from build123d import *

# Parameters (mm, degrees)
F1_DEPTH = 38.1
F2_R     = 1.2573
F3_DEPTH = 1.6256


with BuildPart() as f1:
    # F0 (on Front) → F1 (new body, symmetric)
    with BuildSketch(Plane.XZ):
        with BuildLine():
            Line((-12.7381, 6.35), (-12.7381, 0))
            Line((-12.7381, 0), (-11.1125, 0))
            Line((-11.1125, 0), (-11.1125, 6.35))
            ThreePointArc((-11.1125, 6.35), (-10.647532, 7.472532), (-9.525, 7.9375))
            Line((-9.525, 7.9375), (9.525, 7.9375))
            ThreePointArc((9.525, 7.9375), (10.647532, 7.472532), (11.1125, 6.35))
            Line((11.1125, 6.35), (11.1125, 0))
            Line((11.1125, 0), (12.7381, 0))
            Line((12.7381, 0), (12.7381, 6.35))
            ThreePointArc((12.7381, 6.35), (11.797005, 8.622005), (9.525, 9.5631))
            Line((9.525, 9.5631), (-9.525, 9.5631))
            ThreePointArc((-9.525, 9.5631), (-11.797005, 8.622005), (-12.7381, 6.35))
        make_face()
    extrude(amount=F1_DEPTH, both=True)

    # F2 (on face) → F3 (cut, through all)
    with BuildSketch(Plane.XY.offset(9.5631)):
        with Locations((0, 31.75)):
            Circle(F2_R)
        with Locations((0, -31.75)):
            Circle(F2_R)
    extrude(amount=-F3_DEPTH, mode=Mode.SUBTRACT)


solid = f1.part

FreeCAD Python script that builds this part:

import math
import FreeCAD as App
import Part
import Sketcher

V = App.Vector
Q = App.Units.Quantity

doc = App.newDocument("Part")
params = doc.addObject("Spreadsheet::Sheet", "Params")
for row, (alias, value) in enumerate([
    ("sketch1_radius", "0.0625 in"),
    ("sketch1_width", "0.75 in"),
    ("sketch1_height", "0.25 in"),
    ("pad1_length", "3 in"),
    ("sketch2_diameter", "0.099 in"),
], start=1):
    params.set(f"A{row}", alias)
    params.set(f"B{row}", "=" + value)
    params.setAlias(f"B{row}", alias)

body = doc.addObject("PartDesign::Body", "Body")

# Sketch on XZ plane
sketch1 = body.newObject("Sketcher::SketchObject", "Sketch")
sketch1.AttachmentSupport = (doc.getObject("XZ_Plane"), [""])
sketch1.MapMode = "FlatFace"
sketch1.addGeometry(Part.LineSegment(V(-12.7, 6.3, 0), V(-12.7, 0, 0)), False)
sketch1.addGeometry(Part.LineSegment(V(-12.7, 0, 0), V(-11.1, 0, 0)), False)
sketch1.addGeometry(Part.LineSegment(V(-11.1, 0, 0), V(-11.1, 6.3, 0)), False)
sketch1.addGeometry(Part.ArcOfCircle(Part.Circle(V(-9.5, 6.3, 0), V(0, 0, 1), 1.6), math.radians(90), math.radians(180)), False)
sketch1.addGeometry(Part.LineSegment(V(-9.5, 7.9, 0), V(9.5, 7.9, 0)), False)
sketch1.addGeometry(Part.ArcOfCircle(Part.Circle(V(9.5, 6.3, 0), V(0, 0, 1), 1.6), math.radians(0), math.radians(90)), False)
sketch1.addGeometry(Part.LineSegment(V(11.1, 6.3, 0), V(11.1, 0, 0)), False)
sketch1.addGeometry(Part.LineSegment(V(11.1, 0, 0), V(12.7, 0, 0)), False)
sketch1.addGeometry(Part.LineSegment(V(12.7, 0, 0), V(12.7, 6.3, 0)), False)
sketch1.addGeometry(Part.ArcOfCircle(Part.Circle(V(9.5, 6.4, 0), V(0, 0, 1), 3.2), math.radians(0), math.radians(90)), False)
sketch1.addGeometry(Part.LineSegment(V(9.5, 9.6, 0), V(-9.5, 9.6, 0)), False)
sketch1.addGeometry(Part.ArcOfCircle(Part.Circle(V(-9.5, 6.4, 0), V(0, 0, 1), 3.2), math.radians(90), math.radians(180)), False)
sketch1.addConstraint(Sketcher.Constraint("Coincident", 0, 2, 1, 1))
sketch1.addConstraint(Sketcher.Constraint("Coincident", 1, 2, 2, 1))
sketch1.addConstraint(Sketcher.Constraint("Tangent", 2, 2, 3, 2))
sketch1.addConstraint(Sketcher.Constraint("Tangent", 3, 1, 4, 1))
sketch1.addConstraint(Sketcher.Constraint("Tangent", 4, 2, 5, 2))
sketch1.addConstraint(Sketcher.Constraint("Tangent", 5, 1, 6, 1))
sketch1.addConstraint(Sketcher.Constraint("Coincident", 6, 2, 7, 1))
sketch1.addConstraint(Sketcher.Constraint("Coincident", 7, 2, 8, 1))
sketch1.addConstraint(Sketcher.Constraint("Tangent", 8, 2, 9, 1))
sketch1.addConstraint(Sketcher.Constraint("Tangent", 9, 2, 10, 1))
sketch1.addConstraint(Sketcher.Constraint("Tangent", 10, 2, 11, 1))
sketch1.addConstraint(Sketcher.Constraint("Tangent", 11, 2, 0, 1))
sketch1.addConstraint(Sketcher.Constraint("Vertical", 0))
sketch1.addConstraint(Sketcher.Constraint("Horizontal", 1))
sketch1.addConstraint(Sketcher.Constraint("Vertical", 2))
sketch1.addConstraint(Sketcher.Constraint("Horizontal", 4))
sketch1.addConstraint(Sketcher.Constraint("Vertical", 6))
sketch1.addConstraint(Sketcher.Constraint("Horizontal", 7))
sketch1.addConstraint(Sketcher.Constraint("Vertical", 8))
sketch1.addConstraint(Sketcher.Constraint("Horizontal", 10))
sketch1.addConstraint(Sketcher.Constraint("Coincident", 9, 3, 5, 3))
sketch1.addConstraint(Sketcher.Constraint("Coincident", 11, 3, 3, 3))
sketch1.addConstraint(Sketcher.Constraint("Equal", 3, 5))
sketch1.addConstraint(Sketcher.Constraint("Symmetric", 1, 2, 6, 2, -1, 1))
sketch1.addConstraint(Sketcher.Constraint("PointOnObject", 0, 2, -1))
sketch1.addConstraint(Sketcher.Constraint("Radius", 3, Q("0.0625 in")))
sketch1.addConstraint(Sketcher.Constraint("DistanceX", 4, 1, 4, 2, Q("0.75 in")))
sketch1.addConstraint(Sketcher.Constraint("DistanceY", 0, 2, 0, 1, Q("0.25 in")))
sketch1.addConstraint(Sketcher.Constraint("Radius", 9, Q("0.1265 in")))
sketch1.setExpression("Constraints[25]", "Params.sketch1_radius")
sketch1.setExpression("Constraints[26]", "Params.sketch1_width")
sketch1.setExpression("Constraints[27]", "Params.sketch1_height")
pad1 = body.newObject("PartDesign::Pad", "Pad")
pad1.Profile = sketch1
pad1.setExpression("Length", "Params.pad1_length")
pad1.Midplane = True

# Sketch on XY plane
sketch2 = body.newObject("Sketcher::SketchObject", "Sketch001")
sketch2.AttachmentSupport = (doc.getObject("XY_Plane"), [""])
sketch2.MapMode = "FlatFace"
sketch2.AttachmentOffset = App.Placement(V(0, 0, 0.3765 * 25.4), App.Rotation())
sketch2.addGeometry(Part.Circle(V(0, 31.8, 0), V(0, 0, 1), 1.3), False)
sketch2.addGeometry(Part.Circle(V(0, -31.8, 0), V(0, 0, 1), 1.3), False)
sketch2.addConstraint(Sketcher.Constraint("Equal", 0, 1))
sketch2.addConstraint(Sketcher.Constraint("Symmetric", 0, 3, 1, 3, -1, 1))
sketch2.addConstraint(Sketcher.Constraint("PointOnObject", 0, 3, -2))
sketch2.addConstraint(Sketcher.Constraint("Diameter", 0, Q("0.099 in")))
sketch2.addConstraint(Sketcher.Constraint("DistanceY", 1, 3, 0, 3, Q("2.5 in")))
sketch2.setExpression("Constraints[3]", "Params.sketch2_diameter")
pocket1 = body.newObject("PartDesign::Pocket", "Pocket")
pocket1.Profile = sketch2
pocket1.Type = "ThroughAll"

doc.recompute()
